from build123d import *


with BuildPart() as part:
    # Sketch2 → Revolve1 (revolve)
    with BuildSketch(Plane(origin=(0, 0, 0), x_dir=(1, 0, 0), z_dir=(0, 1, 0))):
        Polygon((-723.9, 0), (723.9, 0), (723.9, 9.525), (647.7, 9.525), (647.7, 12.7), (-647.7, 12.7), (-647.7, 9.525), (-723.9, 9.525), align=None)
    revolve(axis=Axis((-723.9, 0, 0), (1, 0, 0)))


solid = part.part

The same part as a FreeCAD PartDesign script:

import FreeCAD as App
import Part
import Sketcher
Q = App.Units.Quantity


def add_polygon(sketch, points):
    """Adds a closed chain of lines whose ends are joined by coincident constraints."""
    first, n = sketch.GeometryCount, len(points)
    for a, b in zip(points, points[1:] + points[:1]):
        sketch.addGeometry(Part.LineSegment(App.Vector(*a, 0), App.Vector(*b, 0)), False)
    for i in range(n):
        sketch.addConstraint(Sketcher.Constraint("Coincident", first + i, 2, first + (i + 1) % n, 1))

doc = App.newDocument("Part")
body = doc.addObject("PartDesign::Body", "Body")

sketch1 = body.newObject("Sketcher::SketchObject", "Sketch")
sketch1.AttachmentSupport = (doc.getObject("XZ_Plane"), [""])
sketch1.MapMode = "FlatFace"
add_polygon(sketch1, [(-723.9, 0), (723.9, 0), (723.9, -9.5), (647.7, -9.5), (647.7, -12.7), (-647.7, -12.7), (-647.7, -9.5), (-723.9, -9.5)])
sketch1.addConstraint([
    Sketcher.Constraint("Horizontal", 0),
    Sketcher.Constraint("Vertical", 1),
    Sketcher.Constraint("Horizontal", 2),
    Sketcher.Constraint("Vertical", 3),
    Sketcher.Constraint("Horizontal", 4),
    Sketcher.Constraint("Vertical", 5),
    Sketcher.Constraint("Horizontal", 6),
    Sketcher.Constraint("Vertical", 7),
    Sketcher.Constraint("Symmetric", 0, 2, 7, 2, -1, 1),
    Sketcher.Constraint("Symmetric", 2, 2, 5, 2, -2),
    Sketcher.Constraint("DistanceX", 0, 1, 0, 2, Q("57 in")),
    Sketcher.Constraint("DistanceX", 2, 2, 2, 1, Q("3 in")),
    Sketcher.Constraint("DistanceY", 3, 2, -1, 1, Q("0.5 in")),
    Sketcher.Constraint("DistanceY", 1, 2, 1, 1, Q("0.375 in")),
])
revolution = body.newObject("PartDesign::Revolution", "Revolution")
revolution.Profile = sketch1
revolution.ReferenceAxis = (sketch1, ["H_Axis"])
revolution.Angle = 360

doc.recompute()
